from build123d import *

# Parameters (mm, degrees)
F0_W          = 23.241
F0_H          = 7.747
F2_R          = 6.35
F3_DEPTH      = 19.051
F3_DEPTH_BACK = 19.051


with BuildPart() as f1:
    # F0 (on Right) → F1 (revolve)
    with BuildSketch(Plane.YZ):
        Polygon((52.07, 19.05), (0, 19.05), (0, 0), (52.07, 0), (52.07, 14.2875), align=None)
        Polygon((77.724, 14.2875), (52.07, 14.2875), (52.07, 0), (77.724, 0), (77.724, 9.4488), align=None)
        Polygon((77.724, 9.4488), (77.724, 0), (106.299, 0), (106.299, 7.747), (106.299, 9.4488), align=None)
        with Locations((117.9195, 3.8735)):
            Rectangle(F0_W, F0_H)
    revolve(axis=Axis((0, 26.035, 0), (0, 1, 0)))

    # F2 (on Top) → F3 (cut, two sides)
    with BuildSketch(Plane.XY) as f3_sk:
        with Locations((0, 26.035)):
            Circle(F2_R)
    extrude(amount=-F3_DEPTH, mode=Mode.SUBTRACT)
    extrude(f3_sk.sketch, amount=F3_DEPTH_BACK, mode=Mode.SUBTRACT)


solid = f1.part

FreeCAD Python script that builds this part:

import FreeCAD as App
import Part
import Sketcher
Q = App.Units.Quantity


def add_polygon(sketch, points):
    """Adds a closed chain of lines whose ends are joined by coincident constraints."""
    first, n = sketch.GeometryCount, len(points)
    for a, b in zip(points, points[1:] + points[:1]):
        sketch.addGeometry(Part.LineSegment(App.Vector(*a, 0), App.Vector(*b, 0)), False)
    for i in range(n):
        sketch.addConstraint(Sketcher.Constraint("Coincident", first + i, 2, first + (i + 1) % n, 1))

doc = App.newDocument("Part")
params = doc.addObject("Spreadsheet::Sheet", "Params")
for row, (alias, value) in enumerate([
    ("sketch1_width", "5.1 in"),
    ("sketch1_width2", "2.05 in"),
    ("sketch1_width3", "1.01 in"),
    ("sketch1_height", "0.75 in"),
    ("sketch1_width4", "0.915 in"),
    ("revolution_angle", "360 deg"),
    ("sketch2_diameter", "0.5 in"),
], start=1):
    params.set(f"A{row}", alias)
    params.set(f"B{row}", "=" + value)
    params.setAlias(f"B{row}", alias)

body = doc.addObject("PartDesign::Body", "Body")

sketch1 = doc.addObject("Sketcher::SketchObject", "Sketch")
body.addObject(sketch1)
sketch1.AttachmentSupport = (doc.YZ_Plane, [""])
sketch1.MapMode = "FlatFace"
add_polygon(sketch1, [(52.07, 19.05), (0, 19.05), (0, 0), (129.54, 0), (129.54, 7.747), (106.299, 7.747), (106.299, 9.4488), (77.724, 9.4488), (77.724, 14.2875), (52.07, 14.2875)])
sketch1.addConstraint(Sketcher.Constraint("Horizontal", 0))
sketch1.addConstraint(Sketcher.Constraint("Vertical", 1))
sketch1.addConstraint(Sketcher.Constraint("Horizontal", 2))
sketch1.addConstraint(Sketcher.Constraint("Vertical", 3))
sketch1.addConstraint(Sketcher.Constraint("Horizontal", 4))
sketch1.addConstraint(Sketcher.Constraint("Vertical", 5))
sketch1.addConstraint(Sketcher.Constraint("Horizontal", 6))
sketch1.addConstraint(Sketcher.Constraint("Vertical", 7))
sketch1.addConstraint(Sketcher.Constraint("Horizontal", 8))
sketch1.addConstraint(Sketcher.Constraint("Vertical", 9))
sketch1.addConstraint(Sketcher.Constraint("Coincident", 1, 2, -1, 1))
sketch1.addConstraint(Sketcher.Constraint("DistanceX", 2, 1, 2, 2, Q("5.1 in")))
sketch1.addConstraint(Sketcher.Constraint("DistanceX", 0, 2, 0, 1, Q("2.05 in")))
sketch1.addConstraint(Sketcher.Constraint("DistanceX", 8, 2, 8, 1, Q("1.01 in")))
sketch1.addConstraint(Sketcher.Constraint("DistanceY", 1, 2, 1, 1, Q("0.75 in")))
sketch1.addConstraint(Sketcher.Constraint("DistanceX", 4, 2, 4, 1, Q("0.915 in")))
sketch1.addConstraint(Sketcher.Constraint("DistanceY", 3, 1, 3, 2, Q("0.305 in")))
sketch1.addConstraint(Sketcher.Constraint("DistanceY", 5, 1, 5, 2, Q("0.067 in")))
sketch1.addConstraint(Sketcher.Constraint("DistanceY", 9, 1, 9, 2, Q("0.1875 in")))
sketch1.setExpression("Constraints[21]", "Params.sketch1_width")
sketch1.setExpression("Constraints[22]", "Params.sketch1_width2")
sketch1.setExpression("Constraints[23]", "Params.sketch1_width3")
sketch1.setExpression("Constraints[24]", "Params.sketch1_height")
sketch1.setExpression("Constraints[25]", "Params.sketch1_width4")
revolution = doc.addObject("PartDesign::Revolution", "Revolution")
body.addObject(revolution)
revolution.Profile = sketch1
revolution.ReferenceAxis = (sketch1, ["H_Axis"])
revolution.setExpression("Angle", "Params.revolution_angle")

sketch2 = doc.addObject("Sketcher::SketchObject", "Sketch001")
body.addObject(sketch2)
sketch2.AttachmentSupport = (doc.XY_Plane, [""])
sketch2.MapMode = "FlatFace"
sketch2.addGeometry(Part.Circle(App.Vector(0, 26.035, 0), App.Vector(0, 0, 1), 6.35), False)
sketch2.addConstraint(Sketcher.Constraint("PointOnObject", 0, 3, -2))
sketch2.addConstraint(Sketcher.Constraint("Diameter", 0, Q("0.5 in")))
sketch2.addConstraint(Sketcher.Constraint("DistanceY", -1, 1, 0, 3, Q("1.025 in")))
sketch2.setExpression("Constraints[1]", "Params.sketch2_diameter")
pocket1 = doc.addObject("PartDesign::Pocket", "Pocket")
body.addObject(pocket1)
pocket1.Profile = sketch2
pocket1.Type = "ThroughAll"
pocket1.Midplane = True

doc.recompute()
